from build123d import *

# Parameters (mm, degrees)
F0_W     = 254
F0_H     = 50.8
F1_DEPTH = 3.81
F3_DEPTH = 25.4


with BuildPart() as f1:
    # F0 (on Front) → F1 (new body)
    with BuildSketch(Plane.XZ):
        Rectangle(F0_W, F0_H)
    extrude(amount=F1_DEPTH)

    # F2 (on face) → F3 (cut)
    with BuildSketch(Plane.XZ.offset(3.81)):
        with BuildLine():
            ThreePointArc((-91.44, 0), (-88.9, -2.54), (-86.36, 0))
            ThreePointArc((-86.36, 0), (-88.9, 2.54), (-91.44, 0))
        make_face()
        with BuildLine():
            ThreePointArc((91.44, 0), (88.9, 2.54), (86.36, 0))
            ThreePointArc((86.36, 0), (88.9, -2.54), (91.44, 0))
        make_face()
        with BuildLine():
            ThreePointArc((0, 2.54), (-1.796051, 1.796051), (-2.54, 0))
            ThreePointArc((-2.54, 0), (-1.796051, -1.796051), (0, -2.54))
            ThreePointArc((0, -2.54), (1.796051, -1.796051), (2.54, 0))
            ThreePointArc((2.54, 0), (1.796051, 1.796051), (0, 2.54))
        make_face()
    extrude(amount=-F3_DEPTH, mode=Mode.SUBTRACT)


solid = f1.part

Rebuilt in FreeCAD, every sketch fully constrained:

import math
import FreeCAD as App
import Part
import Sketcher

V = App.Vector
Q = App.Units.Quantity


def add_polygon(sketch, points):
    """Adds a closed chain of lines whose ends are joined by coincident constraints."""
    first, n = sketch.GeometryCount, len(points)
    for a, b in zip(points, points[1:] + points[:1]):
        sketch.addGeometry(Part.LineSegment(App.Vector(*a, 0), App.Vector(*b, 0)), False)
    for i in range(n):
        sketch.addConstraint(Sketcher.Constraint("Coincident", first + i, 2, first + (i + 1) % n, 1))

doc = App.newDocument("Part")
params = doc.addObject("Spreadsheet::Sheet", "Params")
for row, (alias, value) in enumerate([
    ("sketch1_width", "10 in"),
    ("sketch1_height", "2 in"),
    ("pad1_length", "0.15 in"),
    ("sketch2_diameter", "0.2 in"),
    ("pocket1_length", "1 in"),
], start=1):
    params.set(f"A{row}", alias)
    params.set(f"B{row}", "=" + value)
    params.setAlias(f"B{row}", alias)

body = doc.addObject("PartDesign::Body", "Body")

# Sketch on XZ plane
sketch1 = body.newObject("Sketcher::SketchObject", "Sketch")
sketch1.AttachmentSupport = (doc.getObject("XZ_Plane"), [""])
sketch1.MapMode = "FlatFace"
add_polygon(sketch1, [(-127, 25), (-127, -25), (127, -25), (127, 25)])  # lines 0-3
sketch1.addConstraint([
    Sketcher.Constraint("Vertical", 0),
    Sketcher.Constraint("Horizontal", 1),
    Sketcher.Constraint("Vertical", 2),
    Sketcher.Constraint("Horizontal", 3),
    Sketcher.Constraint("Symmetric", 0, 2, 2, 2, -1, 1),
    Sketcher.Constraint("DistanceX", 1, 1, 1, 2, Q("10 in")),
    Sketcher.Constraint("DistanceY", 0, 2, 0, 1, Q("2 in")),
])
sketch1.setExpression("Constraints[9]", "Params.sketch1_width")
sketch1.setExpression("Constraints[10]", "Params.sketch1_height")
pad1 = body.newObject("PartDesign::Pad", "Pad")
pad1.Profile = sketch1
pad1.setExpression("Length", "Params.pad1_length")

# Sketch on XZ plane
sketch2 = body.newObject("Sketcher::SketchObject", "Sketch001")
sketch2.AttachmentSupport = (doc.getObject("XZ_Plane"), [""])
sketch2.MapMode = "FlatFace"
sketch2.AttachmentOffset = App.Placement(V(0, 0, 0.15 * 25.4), App.Rotation())
sketch2.addGeometry([
    Part.Circle(V(-88.9, 0, 0), V(0, 0, 1), 2.5),  # 0
    Part.Circle(V(88.9, 0, 0), V(0, 0, 1), 2.5),  # 1
    Part.ArcOfCircle(Part.Circle(V(0, 0, 0), V(0, 0, 1), 2.5), math.radians(90), math.radians(180)),  # 2
    Part.ArcOfCircle(Part.Circle(V(0, 0, 0), V(0, 0, 1), 2.5), math.radians(-180), math.radians(-90)),  # 3
    Part.ArcOfCircle(Part.Circle(V(0, 0, 0), V(0, 0, 1), 2.5), math.radians(-90), math.radians(0)),  # 4
    Part.ArcOfCircle(Part.Circle(V(0, 0, 0), V(0, 0, 1), 2.5), math.radians(0), math.radians(90)),  # 5
], False)
sketch2.addConstraint([
    Sketcher.Constraint("Tangent", 2, 2, 3, 1),
    Sketcher.Constraint("Tangent", 3, 2, 4, 1),
    Sketcher.Constraint("Tangent", 4, 2, 5, 1),
    Sketcher.Constraint("Tangent", 5, 2, 2, 1),
    Sketcher.Constraint("Coincident", 2, 3, -1, 1),
    Sketcher.Constraint("Equal", 0, 1),
    Sketcher.Constraint("Equal", 1, 2),
    Sketcher.Constraint("Equal", 2, 3),
    Sketcher.Constraint("Symmetric", 0, 3, 1, 3, -1, 1),
    Sketcher.Constraint("PointOnObject", 0, 3, -1),
    Sketcher.Constraint("PointOnObject", 2, 2, -1),
    Sketcher.Constraint("PointOnObject", 3, 2, -2),
    Sketcher.Constraint("PointOnObject", 4, 2, -1),
    Sketcher.Constraint("PointOnObject", 5, 2, -2),
    Sketcher.Constraint("Diameter", 0, Q("0.2 in")),
    Sketcher.Constraint("DistanceX", 0, 3, 1, 3, Q("7 in")),
])
sketch2.setExpression("Constraints[14]", "Params.sketch2_diameter")
pocket1 = body.newObject("PartDesign::Pocket", "Pocket")
pocket1.Profile = sketch2
pocket1.setExpression("Length", "Params.pocket1_length")

doc.recompute()
